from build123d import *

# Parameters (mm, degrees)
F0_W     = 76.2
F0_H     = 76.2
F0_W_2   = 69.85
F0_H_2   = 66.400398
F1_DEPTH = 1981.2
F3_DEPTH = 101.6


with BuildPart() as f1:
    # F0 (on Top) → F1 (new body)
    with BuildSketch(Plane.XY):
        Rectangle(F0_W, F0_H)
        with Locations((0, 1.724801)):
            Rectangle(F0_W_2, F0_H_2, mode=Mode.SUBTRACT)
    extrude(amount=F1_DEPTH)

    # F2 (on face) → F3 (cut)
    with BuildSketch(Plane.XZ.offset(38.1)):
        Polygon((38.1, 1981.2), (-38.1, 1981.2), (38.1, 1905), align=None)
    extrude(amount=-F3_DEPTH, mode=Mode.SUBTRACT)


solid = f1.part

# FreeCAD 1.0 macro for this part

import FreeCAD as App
import Part
import Sketcher
from FreeCAD import Vector
Q = App.Units.Quantity

doc = App.newDocument("Part")
body = doc.addObject("PartDesign::Body", "Body")

# Sketch on XY plane
sketch1 = body.newObject("Sketcher::SketchObject", "Sketch")
sketch1.AttachmentSupport = (doc.getObject("XY_Plane"), [""])
sketch1.MapMode = "FlatFace"
sketch1.addGeometry([
    Part.LineSegment(Vector(-38.1, 38.1, 0), Vector(-38.1, -38.1, 0)),  # 0
    Part.LineSegment(Vector(-38.1, -38.1, 0), Vector(38.1, -38.1, 0)),  # 1
    Part.LineSegment(Vector(38.1, -38.1, 0), Vector(38.1, 38.1, 0)),  # 2
    Part.LineSegment(Vector(38.1, 38.1, 0), Vector(-38.1, 38.1, 0)),  # 3
    Part.LineSegment(Vector(34.925, -31.475398, 0), Vector(-34.925, -31.475398, 0)),  # 4
    Part.LineSegment(Vector(-34.925, -31.475398, 0), Vector(-34.925, 34.925, 0)),  # 5
    Part.LineSegment(Vector(-34.925, 34.925, 0), Vector(34.925, 34.925, 0)),  # 6
    Part.LineSegment(Vector(34.925, 34.925, 0), Vector(34.925, -31.475398, 0)),  # 7
], False)
sketch1.addConstraint([
    Sketcher.Constraint("Coincident", 0, 2, 1, 1),
    Sketcher.Constraint("Coincident", 1, 2, 2, 1),
    Sketcher.Constraint("Coincident", 2, 2, 3, 1),
    Sketcher.Constraint("Coincident", 3, 2, 0, 1),
    Sketcher.Constraint("Coincident", 4, 2, 5, 1),
    Sketcher.Constraint("Coincident", 5, 2, 6, 1),
    Sketcher.Constraint("Coincident", 6, 2, 7, 1),
    Sketcher.Constraint("Coincident", 7, 2, 4, 1),
    Sketcher.Constraint("Vertical", 0),
    Sketcher.Constraint("Horizontal", 1),
    Sketcher.Constraint("Vertical", 2),
    Sketcher.Constraint("Horizontal", 3),
    Sketcher.Constraint("Horizontal", 4),
    Sketcher.Constraint("Vertical", 5),
    Sketcher.Constraint("Horizontal", 6),
    Sketcher.Constraint("Vertical", 7),
    Sketcher.Constraint("Symmetric", 0, 2, 2, 2, -1, 1),
    Sketcher.Constraint("Equal", 3, 0),
    Sketcher.Constraint("DistanceX", 1, 1, 1, 2, Q("3 in")),
    Sketcher.Constraint("DistanceX", 4, 2, 4, 1, Q("2.75 in")),
    Sketcher.Constraint("DistanceX", 4, 2, -1, 1, Q("1.375 in")),
    Sketcher.Constraint("DistanceY", -1, 1, 5, 2, Q("1.375 in")),
    Sketcher.Constraint("DistanceY", 4, 2, 3, 2, 69.575398),
])
pad1 = body.newObject("PartDesign::Pad", "Pad")
pad1.Profile = sketch1
pad1.Length = Q("78 in")

# Sketch on XZ plane
sketch2 = body.newObject("Sketcher::SketchObject", "Sketch001")
sketch2.AttachmentSupport = (doc.getObject("XZ_Plane"), [""])
sketch2.MapMode = "FlatFace"
sketch2.AttachmentOffset = App.Placement(Vector(0, 0, 1.5 * 25.4), App.Rotation())
sketch2.addGeometry([
    Part.LineSegment(Vector(38.1, 1981.2, 0), Vector(-38.1, 1981.2, 0)),
    Part.LineSegment(Vector(-38.1, 1981.2, 0), Vector(38.1, 1905, 0)),
    Part.LineSegment(Vector(38.1, 1905, 0), Vector(38.1, 1981.2, 0)),
], False)
sketch2.addConstraint([
    Sketcher.Constraint("Coincident", 0, 2, 1, 1),
    Sketcher.Constraint("Coincident", 1, 2, 2, 1),
    Sketcher.Constraint("Coincident", 2, 2, 0, 1),
    Sketcher.Constraint("Horizontal", 0),
    Sketcher.Constraint("Vertical", 2),
    Sketcher.Constraint("Equal", 0, 2),
    Sketcher.Constraint("DistanceX", 0, 2, 0, 1, Q("3 in")),
    Sketcher.Constraint("DistanceY", -1, 1, 0, 2, Q("78 in")),
    Sketcher.Constraint("DistanceX", 0, 2, -1, 1, Q("1.5 in")),
])
pocket1 = body.newObject("PartDesign::Pocket", "Pocket")
pocket1.Profile = sketch2
pocket1.Length = Q("4 in")

doc.recompute()
